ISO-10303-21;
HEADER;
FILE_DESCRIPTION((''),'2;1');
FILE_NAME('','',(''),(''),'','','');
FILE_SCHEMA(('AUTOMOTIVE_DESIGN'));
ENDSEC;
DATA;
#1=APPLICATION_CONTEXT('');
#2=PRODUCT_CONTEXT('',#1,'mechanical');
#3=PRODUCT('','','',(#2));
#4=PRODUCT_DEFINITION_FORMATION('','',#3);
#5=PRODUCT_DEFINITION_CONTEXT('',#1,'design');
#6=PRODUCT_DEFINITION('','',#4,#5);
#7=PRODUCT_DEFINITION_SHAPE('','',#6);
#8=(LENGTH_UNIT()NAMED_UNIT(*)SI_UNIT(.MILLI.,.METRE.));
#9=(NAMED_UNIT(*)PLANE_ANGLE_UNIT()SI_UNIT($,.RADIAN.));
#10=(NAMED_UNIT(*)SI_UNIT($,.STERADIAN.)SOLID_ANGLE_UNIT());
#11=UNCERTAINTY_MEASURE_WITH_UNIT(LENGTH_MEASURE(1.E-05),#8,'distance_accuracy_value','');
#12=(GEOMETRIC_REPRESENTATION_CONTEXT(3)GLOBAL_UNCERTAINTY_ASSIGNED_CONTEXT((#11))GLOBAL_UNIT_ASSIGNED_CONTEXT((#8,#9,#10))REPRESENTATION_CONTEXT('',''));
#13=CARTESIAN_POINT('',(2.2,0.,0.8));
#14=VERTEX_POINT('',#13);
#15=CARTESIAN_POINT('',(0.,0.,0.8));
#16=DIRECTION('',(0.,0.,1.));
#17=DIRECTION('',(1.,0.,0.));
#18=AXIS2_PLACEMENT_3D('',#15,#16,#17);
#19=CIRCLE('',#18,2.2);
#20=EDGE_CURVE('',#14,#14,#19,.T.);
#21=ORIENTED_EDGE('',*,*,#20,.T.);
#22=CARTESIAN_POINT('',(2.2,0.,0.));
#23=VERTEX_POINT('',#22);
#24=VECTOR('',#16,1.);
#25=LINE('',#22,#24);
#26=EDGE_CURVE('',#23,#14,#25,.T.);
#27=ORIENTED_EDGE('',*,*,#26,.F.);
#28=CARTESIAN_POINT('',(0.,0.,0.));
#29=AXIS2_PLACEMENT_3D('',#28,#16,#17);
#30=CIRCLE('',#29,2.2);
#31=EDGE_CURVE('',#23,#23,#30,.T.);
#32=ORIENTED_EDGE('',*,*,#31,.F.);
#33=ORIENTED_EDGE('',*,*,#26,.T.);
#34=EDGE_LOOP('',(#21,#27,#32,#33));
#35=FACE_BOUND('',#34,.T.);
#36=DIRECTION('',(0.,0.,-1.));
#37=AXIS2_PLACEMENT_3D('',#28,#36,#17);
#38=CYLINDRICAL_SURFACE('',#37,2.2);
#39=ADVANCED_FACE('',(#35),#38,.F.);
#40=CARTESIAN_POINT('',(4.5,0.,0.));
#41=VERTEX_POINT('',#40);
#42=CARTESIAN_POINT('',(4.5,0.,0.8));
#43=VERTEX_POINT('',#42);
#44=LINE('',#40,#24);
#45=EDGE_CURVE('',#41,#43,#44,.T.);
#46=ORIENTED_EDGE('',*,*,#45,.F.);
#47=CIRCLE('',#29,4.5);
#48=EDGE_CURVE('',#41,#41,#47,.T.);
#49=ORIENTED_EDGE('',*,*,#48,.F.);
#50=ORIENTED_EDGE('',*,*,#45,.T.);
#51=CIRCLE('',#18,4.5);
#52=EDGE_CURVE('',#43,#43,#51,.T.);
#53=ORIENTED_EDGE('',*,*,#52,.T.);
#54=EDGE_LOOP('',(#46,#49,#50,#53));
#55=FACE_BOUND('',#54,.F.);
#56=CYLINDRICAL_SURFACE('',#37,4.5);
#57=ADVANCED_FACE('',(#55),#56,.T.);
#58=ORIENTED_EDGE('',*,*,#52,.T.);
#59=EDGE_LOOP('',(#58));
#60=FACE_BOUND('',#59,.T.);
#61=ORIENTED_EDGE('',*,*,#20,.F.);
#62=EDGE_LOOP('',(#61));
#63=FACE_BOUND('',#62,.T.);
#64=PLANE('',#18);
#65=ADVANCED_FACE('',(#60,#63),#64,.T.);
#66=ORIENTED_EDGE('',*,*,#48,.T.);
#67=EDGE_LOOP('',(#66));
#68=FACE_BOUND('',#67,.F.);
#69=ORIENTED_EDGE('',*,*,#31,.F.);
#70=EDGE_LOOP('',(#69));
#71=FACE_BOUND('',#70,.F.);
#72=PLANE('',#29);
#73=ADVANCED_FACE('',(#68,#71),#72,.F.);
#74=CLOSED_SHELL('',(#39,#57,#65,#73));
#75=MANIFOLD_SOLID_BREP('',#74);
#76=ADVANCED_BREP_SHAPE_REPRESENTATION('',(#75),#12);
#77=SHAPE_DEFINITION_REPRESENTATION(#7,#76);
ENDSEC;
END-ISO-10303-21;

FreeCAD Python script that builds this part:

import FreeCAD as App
import Part
import Sketcher

V = App.Vector

doc = App.newDocument("Part")
body = doc.addObject("PartDesign::Body", "Body")

# Sketch on XY plane
sketch1 = body.newObject("Sketcher::SketchObject", "Sketch")
sketch1.AttachmentSupport = (doc.getObject("XY_Plane"), [""])
sketch1.MapMode = "FlatFace"
sketch1.addGeometry(Part.Circle(V(0, 0, 0), V(0, 0, 1), 4.5), False)
sketch1.addGeometry(Part.Circle(V(0, 0, 0), V(0, 0, 1), 2.2), False)
sketch1.addConstraint(Sketcher.Constraint("Coincident", 0, 3, -1, 1))
sketch1.addConstraint(Sketcher.Constraint("Coincident", 1, 3, -1, 1))
sketch1.addConstraint(Sketcher.Constraint("Diameter", 0, 9.0))
sketch1.addConstraint(Sketcher.Constraint("Diameter", 1, 4.4))
pad1 = body.newObject("PartDesign::Pad", "Pad")
pad1.Profile = sketch1
pad1.Length = 0.8

doc.recompute()
